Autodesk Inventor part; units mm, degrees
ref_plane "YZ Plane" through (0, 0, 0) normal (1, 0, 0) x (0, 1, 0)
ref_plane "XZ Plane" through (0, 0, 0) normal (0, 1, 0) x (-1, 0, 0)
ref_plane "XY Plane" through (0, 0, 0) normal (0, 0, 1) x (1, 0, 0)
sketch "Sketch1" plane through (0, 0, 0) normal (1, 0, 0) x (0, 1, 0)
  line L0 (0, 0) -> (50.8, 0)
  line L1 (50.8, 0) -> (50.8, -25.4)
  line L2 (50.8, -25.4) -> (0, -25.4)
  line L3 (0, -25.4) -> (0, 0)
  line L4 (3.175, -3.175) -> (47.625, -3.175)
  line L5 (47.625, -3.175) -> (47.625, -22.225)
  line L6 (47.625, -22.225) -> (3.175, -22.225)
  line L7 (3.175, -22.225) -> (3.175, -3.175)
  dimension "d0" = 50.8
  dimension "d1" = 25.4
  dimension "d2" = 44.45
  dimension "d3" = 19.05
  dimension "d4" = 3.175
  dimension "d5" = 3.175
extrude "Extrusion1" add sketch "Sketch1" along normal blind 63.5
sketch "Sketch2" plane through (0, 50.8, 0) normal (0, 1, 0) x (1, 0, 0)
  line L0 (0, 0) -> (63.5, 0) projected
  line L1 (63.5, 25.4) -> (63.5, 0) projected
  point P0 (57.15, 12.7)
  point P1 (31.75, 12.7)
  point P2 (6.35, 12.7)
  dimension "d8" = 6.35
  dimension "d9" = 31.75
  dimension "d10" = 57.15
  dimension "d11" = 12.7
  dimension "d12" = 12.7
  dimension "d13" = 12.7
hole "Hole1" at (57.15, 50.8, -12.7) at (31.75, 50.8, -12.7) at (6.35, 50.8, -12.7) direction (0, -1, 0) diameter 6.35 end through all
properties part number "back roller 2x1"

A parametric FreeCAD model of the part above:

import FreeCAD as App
import Part
import Sketcher
Q = App.Units.Quantity

doc = App.newDocument("Part")
body = doc.addObject("PartDesign::Body", "Body")

# Sketch on YZ plane
sketch1 = body.newObject("Sketcher::SketchObject", "Sketch")
sketch1.AttachmentSupport = (doc.getObject("YZ_Plane"), [""])
sketch1.MapMode = "FlatFace"
sketch1.addGeometry([
    Part.LineSegment(App.Vector(51, 0, 0), App.Vector(0, 0, 0)),  # 0
    Part.LineSegment(App.Vector(0, 0, 0), App.Vector(0, -25, 0)),  # 1
    Part.LineSegment(App.Vector(0, -25, 0), App.Vector(51, -25, 0)),  # 2
    Part.LineSegment(App.Vector(51, -25, 0), App.Vector(51, 0, 0)),  # 3
    Part.LineSegment(App.Vector(3, -22, 0), App.Vector(3, -3, 0)),  # 4
    Part.LineSegment(App.Vector(3, -3, 0), App.Vector(48, -3, 0)),  # 5
    Part.LineSegment(App.Vector(48, -3, 0), App.Vector(48, -22, 0)),  # 6
    Part.LineSegment(App.Vector(48, -22, 0), App.Vector(3, -22, 0)),  # 7
], False)
sketch1.addConstraint([
    Sketcher.Constraint("Coincident", 0, 2, 1, 1),
    Sketcher.Constraint("Coincident", 1, 2, 2, 1),
    Sketcher.Constraint("Coincident", 2, 2, 3, 1),
    Sketcher.Constraint("Coincident", 3, 2, 0, 1),
    Sketcher.Constraint("Coincident", 4, 2, 5, 1),
    Sketcher.Constraint("Coincident", 5, 2, 6, 1),
    Sketcher.Constraint("Coincident", 6, 2, 7, 1),
    Sketcher.Constraint("Coincident", 7, 2, 4, 1),
    Sketcher.Constraint("Horizontal", 0),
    Sketcher.Constraint("Vertical", 1),
    Sketcher.Constraint("Horizontal", 2),
    Sketcher.Constraint("Vertical", 3),
    Sketcher.Constraint("Vertical", 4),
    Sketcher.Constraint("Horizontal", 5),
    Sketcher.Constraint("Vertical", 6),
    Sketcher.Constraint("Horizontal", 7),
    Sketcher.Constraint("Coincident", 0, 2, -1, 1),
    Sketcher.Constraint("DistanceX", 0, 2, 0, 1, Q("2 in")),
    Sketcher.Constraint("DistanceY", 1, 2, 1, 1, Q("1 in")),
    Sketcher.Constraint("DistanceX", 5, 1, 5, 2, Q("1.75 in")),
    Sketcher.Constraint("DistanceY", 4, 1, 4, 2, Q("0.75 in")),
    Sketcher.Constraint("DistanceX", -1, 1, 4, 2, Q("0.125 in")),
    Sketcher.Constraint("DistanceY", 4, 2, -1, 1, Q("0.125 in")),
])
pad1 = body.newObject("PartDesign::Pad", "Pad")
pad1.Profile = sketch1
pad1.Length = Q("2.5 in")

# Sketch on XZ plane
sketch2 = body.newObject("Sketcher::SketchObject", "Sketch001")
sketch2.AttachmentSupport = (doc.getObject("XZ_Plane"), [""])
sketch2.MapMode = "FlatFace"
sketch2.AttachmentOffset = App.Placement(App.Vector(0, 0, -2 * 25.4), App.Rotation())
sketch2.addGeometry([
    Part.Circle(App.Vector(57.1, -12.7, 0), App.Vector(0, 0, 1), 3.2),
    Part.Circle(App.Vector(31.8, -12.7, 0), App.Vector(0, 0, 1), 3.2),
    Part.Circle(App.Vector(6.3, -12.7, 0), App.Vector(0, 0, 1), 3.2),
], False)
sketch2.addConstraint([
    Sketcher.Constraint("Equal", 0, 1),
    Sketcher.Constraint("Equal", 1, 2),
    Sketcher.Constraint("Horizontal", 0, 3, 1, 3),
    Sketcher.Constraint("Horizontal", 1, 3, 2, 3),
    Sketcher.Constraint("Diameter", 0, Q("0.25 in")),
    Sketcher.Constraint("DistanceX", 1, 3, 0, 3, Q("1 in")),
    Sketcher.Constraint("DistanceX", 2, 3, 1, 3, Q("1 in")),
    Sketcher.Constraint("DistanceY", 0, 3, -1, 1, Q("0.5 in")),
    Sketcher.Constraint("DistanceX", -1, 1, 0, 3, Q("2.25 in")),
])
doc.recompute()
hole = body.newObject("PartDesign::Hole", "Hole")
hole.Profile = sketch2
hole.ThreadType = "None"
hole.Diameter = Q("0.25 in")
hole.DepthType = "ThroughAll"
hole.Reversed = True

doc.recompute()
